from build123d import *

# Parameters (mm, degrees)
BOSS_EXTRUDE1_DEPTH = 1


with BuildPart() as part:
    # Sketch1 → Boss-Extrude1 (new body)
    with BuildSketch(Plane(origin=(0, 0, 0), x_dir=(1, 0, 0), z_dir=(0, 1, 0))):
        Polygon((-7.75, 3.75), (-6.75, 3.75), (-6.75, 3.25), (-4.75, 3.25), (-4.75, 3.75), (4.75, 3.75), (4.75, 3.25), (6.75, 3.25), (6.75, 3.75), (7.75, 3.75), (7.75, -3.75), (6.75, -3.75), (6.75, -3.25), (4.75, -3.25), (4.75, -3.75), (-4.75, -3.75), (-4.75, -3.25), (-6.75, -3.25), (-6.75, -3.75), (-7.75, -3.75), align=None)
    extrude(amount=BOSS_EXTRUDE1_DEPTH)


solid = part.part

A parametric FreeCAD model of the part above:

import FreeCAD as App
import Part
import Sketcher
from FreeCAD import Vector
Q = App.Units.Quantity


def add_polygon(sketch, points):
    """Adds a closed chain of lines whose ends are joined by coincident constraints."""
    first, n = sketch.GeometryCount, len(points)
    for a, b in zip(points, points[1:] + points[:1]):
        sketch.addGeometry(Part.LineSegment(App.Vector(*a, 0), App.Vector(*b, 0)), False)
    for i in range(n):
        sketch.addConstraint(Sketcher.Constraint("Coincident", first + i, 2, first + (i + 1) % n, 1))

doc = App.newDocument("Part")
params = doc.addObject("Spreadsheet::Sheet", "Params")
for row, (alias, value) in enumerate([
    ("sketch1_width", "1 mm"),
    ("sketch1_width2", "2 mm"),
    ("sketch1_width3", "9.5 mm"),
    ("sketch1_height", "7.5 mm"),
    ("sketch1_height2", "0.5 mm"),
    ("pad1_length", "1 mm"),
], start=1):
    params.set(f"A{row}", alias)
    params.set(f"B{row}", "=" + value)
    params.setAlias(f"B{row}", alias)

body = doc.addObject("PartDesign::Body", "Body")

sketch1 = doc.addObject("Sketcher::SketchObject", "Sketch")
body.addObject(sketch1)
sketch1.AttachmentSupport = (doc.XZ_Plane, [""])
sketch1.MapMode = "FlatFace"
add_polygon(sketch1, [(-6.8, -3.8), (-7.8, -3.8), (-7.8, 3.8), (-6.8, 3.8), (-6.8, 3.2), (-4.8, 3.2), (-4.8, 3.8), (4.8, 3.8), (4.8, 3.2), (6.8, 3.2), (6.8, 3.8), (7.8, 3.8), (7.8, -3.8), (6.8, -3.8), (6.8, -3.2), (4.8, -3.2), (4.8, -3.8), (-4.8, -3.8), (-4.8, -3.2), (-6.8, -3.2)])
sketch1.addConstraint([
    Sketcher.Constraint("Horizontal", 0),
    Sketcher.Constraint("Vertical", 1),
    Sketcher.Constraint("Horizontal", 2),
    Sketcher.Constraint("Vertical", 3),
    Sketcher.Constraint("Horizontal", 4),
    Sketcher.Constraint("Vertical", 5),
    Sketcher.Constraint("Horizontal", 6),
    Sketcher.Constraint("Vertical", 7),
    Sketcher.Constraint("Horizontal", 8),
    Sketcher.Constraint("Vertical", 9),
    Sketcher.Constraint("Horizontal", 10),
    Sketcher.Constraint("Vertical", 11),
    Sketcher.Constraint("Horizontal", 12),
    Sketcher.Constraint("Vertical", 13),
    Sketcher.Constraint("Horizontal", 14),
    Sketcher.Constraint("Vertical", 15),
    Sketcher.Constraint("Horizontal", 16),
    Sketcher.Constraint("Vertical", 17),
    Sketcher.Constraint("Horizontal", 18),
    Sketcher.Constraint("Vertical", 19),
    Sketcher.Constraint("Symmetric", 0, 2, 10, 2, -1, 1),
    Sketcher.Constraint("Symmetric", 2, 2, 12, 2, -1, 1),
    Sketcher.Constraint("Symmetric", 4, 2, 14, 2, -1, 1),
    Sketcher.Constraint("Symmetric", 6, 2, 16, 2, -1, 1),
    Sketcher.Constraint("Symmetric", 8, 2, 18, 2, -1, 1),
    Sketcher.Constraint("Symmetric", 4, 2, 7, 2, -2),
    Sketcher.Constraint("Symmetric", 2, 2, 9, 2, -2),
    Sketcher.Constraint("Horizontal", 2, 2, 5, 2),
    Sketcher.Constraint("DistanceX", 0, 2, 0, 1, Q("1 mm")),
    Sketcher.Constraint("DistanceX", 4, 1, 4, 2, Q("2 mm")),
    Sketcher.Constraint("DistanceX", 6, 1, 6, 2, Q("9.5 mm")),
    Sketcher.Constraint("DistanceY", 1, 1, 1, 2, Q("7.5 mm")),
    Sketcher.Constraint("DistanceY", 3, 2, 3, 1, Q("0.5 mm")),
])
sketch1.setExpression("Constraints[48]", "Params.sketch1_width")
sketch1.setExpression("Constraints[49]", "Params.sketch1_width2")
sketch1.setExpression("Constraints[50]", "Params.sketch1_width3")
sketch1.setExpression("Constraints[51]", "Params.sketch1_height")
sketch1.setExpression("Constraints[52]", "Params.sketch1_height2")
pad1 = doc.addObject("PartDesign::Pad", "Pad")
body.addObject(pad1)
pad1.Profile = sketch1
pad1.setExpression("Length", "Params.pad1_length")
pad1.Reversed = True

doc.recompute()
